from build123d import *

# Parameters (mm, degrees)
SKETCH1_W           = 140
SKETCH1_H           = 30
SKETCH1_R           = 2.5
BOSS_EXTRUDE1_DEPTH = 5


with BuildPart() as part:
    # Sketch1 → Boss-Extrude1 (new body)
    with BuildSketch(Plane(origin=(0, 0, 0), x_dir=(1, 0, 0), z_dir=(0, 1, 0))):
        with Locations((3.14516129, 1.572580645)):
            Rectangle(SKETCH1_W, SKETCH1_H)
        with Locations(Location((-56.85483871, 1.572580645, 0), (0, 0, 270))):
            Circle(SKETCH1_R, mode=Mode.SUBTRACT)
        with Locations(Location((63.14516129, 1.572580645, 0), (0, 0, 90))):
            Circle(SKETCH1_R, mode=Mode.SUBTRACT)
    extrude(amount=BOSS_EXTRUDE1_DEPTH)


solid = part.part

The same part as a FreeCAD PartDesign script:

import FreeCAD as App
import Part
import Sketcher
from FreeCAD import Vector
Q = App.Units.Quantity


def add_polygon(sketch, points):
    """Adds a closed chain of lines whose ends are joined by coincident constraints."""
    first, n = sketch.GeometryCount, len(points)
    for a, b in zip(points, points[1:] + points[:1]):
        sketch.addGeometry(Part.LineSegment(App.Vector(*a, 0), App.Vector(*b, 0)), False)
    for i in range(n):
        sketch.addConstraint(Sketcher.Constraint("Coincident", first + i, 2, first + (i + 1) % n, 1))

doc = App.newDocument("Part")
body = doc.addObject("PartDesign::Body", "Body")

sketch1 = doc.addObject("Sketcher::SketchObject", "Sketch")
body.addObject(sketch1)
sketch1.AttachmentSupport = (doc.XZ_Plane, [""])
sketch1.MapMode = "FlatFace"
add_polygon(sketch1, [(-66.9, -16.6), (-66.9, 13.4), (73.1, 13.4), (73.1, -16.6)])
sketch1.addGeometry(Part.Circle(Vector(-56.9, -1.6, 0), Vector(0, 0, 1), 2.5), False)
sketch1.addGeometry(Part.Circle(Vector(63.1, -1.6, 0), Vector(0, 0, 1), 2.5), False)
sketch1.addConstraint([
    Sketcher.Constraint("Vertical", 0),
    Sketcher.Constraint("Horizontal", 1),
    Sketcher.Constraint("Vertical", 2),
    Sketcher.Constraint("Horizontal", 3),
    Sketcher.Constraint("Equal", 4, 5),
    Sketcher.Constraint("Horizontal", 4, 3, 5, 3),
    Sketcher.Constraint("Diameter", 4, Q("5 mm")),
    Sketcher.Constraint("DistanceX", 1, 1, 1, 2, Q("140 mm")),
    Sketcher.Constraint("DistanceY", 0, 1, 0, 2, Q("30 mm")),
    Sketcher.Constraint("DistanceX", 4, 3, 5, 3, Q("120 mm")),
    Sketcher.Constraint("DistanceX", 0, 2, 4, 3, Q("10 mm")),
    Sketcher.Constraint("DistanceY", 4, 3, 0, 2, Q("15 mm")),
    Sketcher.Constraint("DistanceX", 4, 3, -1, 1, Q("56.854839 mm")),
    Sketcher.Constraint("DistanceY", 4, 3, -1, 1, Q("1.572581 mm")),
])
pad1 = doc.addObject("PartDesign::Pad", "Pad")
body.addObject(pad1)
pad1.Profile = sketch1
pad1.Length = 5
pad1.Reversed = True

doc.recompute()
